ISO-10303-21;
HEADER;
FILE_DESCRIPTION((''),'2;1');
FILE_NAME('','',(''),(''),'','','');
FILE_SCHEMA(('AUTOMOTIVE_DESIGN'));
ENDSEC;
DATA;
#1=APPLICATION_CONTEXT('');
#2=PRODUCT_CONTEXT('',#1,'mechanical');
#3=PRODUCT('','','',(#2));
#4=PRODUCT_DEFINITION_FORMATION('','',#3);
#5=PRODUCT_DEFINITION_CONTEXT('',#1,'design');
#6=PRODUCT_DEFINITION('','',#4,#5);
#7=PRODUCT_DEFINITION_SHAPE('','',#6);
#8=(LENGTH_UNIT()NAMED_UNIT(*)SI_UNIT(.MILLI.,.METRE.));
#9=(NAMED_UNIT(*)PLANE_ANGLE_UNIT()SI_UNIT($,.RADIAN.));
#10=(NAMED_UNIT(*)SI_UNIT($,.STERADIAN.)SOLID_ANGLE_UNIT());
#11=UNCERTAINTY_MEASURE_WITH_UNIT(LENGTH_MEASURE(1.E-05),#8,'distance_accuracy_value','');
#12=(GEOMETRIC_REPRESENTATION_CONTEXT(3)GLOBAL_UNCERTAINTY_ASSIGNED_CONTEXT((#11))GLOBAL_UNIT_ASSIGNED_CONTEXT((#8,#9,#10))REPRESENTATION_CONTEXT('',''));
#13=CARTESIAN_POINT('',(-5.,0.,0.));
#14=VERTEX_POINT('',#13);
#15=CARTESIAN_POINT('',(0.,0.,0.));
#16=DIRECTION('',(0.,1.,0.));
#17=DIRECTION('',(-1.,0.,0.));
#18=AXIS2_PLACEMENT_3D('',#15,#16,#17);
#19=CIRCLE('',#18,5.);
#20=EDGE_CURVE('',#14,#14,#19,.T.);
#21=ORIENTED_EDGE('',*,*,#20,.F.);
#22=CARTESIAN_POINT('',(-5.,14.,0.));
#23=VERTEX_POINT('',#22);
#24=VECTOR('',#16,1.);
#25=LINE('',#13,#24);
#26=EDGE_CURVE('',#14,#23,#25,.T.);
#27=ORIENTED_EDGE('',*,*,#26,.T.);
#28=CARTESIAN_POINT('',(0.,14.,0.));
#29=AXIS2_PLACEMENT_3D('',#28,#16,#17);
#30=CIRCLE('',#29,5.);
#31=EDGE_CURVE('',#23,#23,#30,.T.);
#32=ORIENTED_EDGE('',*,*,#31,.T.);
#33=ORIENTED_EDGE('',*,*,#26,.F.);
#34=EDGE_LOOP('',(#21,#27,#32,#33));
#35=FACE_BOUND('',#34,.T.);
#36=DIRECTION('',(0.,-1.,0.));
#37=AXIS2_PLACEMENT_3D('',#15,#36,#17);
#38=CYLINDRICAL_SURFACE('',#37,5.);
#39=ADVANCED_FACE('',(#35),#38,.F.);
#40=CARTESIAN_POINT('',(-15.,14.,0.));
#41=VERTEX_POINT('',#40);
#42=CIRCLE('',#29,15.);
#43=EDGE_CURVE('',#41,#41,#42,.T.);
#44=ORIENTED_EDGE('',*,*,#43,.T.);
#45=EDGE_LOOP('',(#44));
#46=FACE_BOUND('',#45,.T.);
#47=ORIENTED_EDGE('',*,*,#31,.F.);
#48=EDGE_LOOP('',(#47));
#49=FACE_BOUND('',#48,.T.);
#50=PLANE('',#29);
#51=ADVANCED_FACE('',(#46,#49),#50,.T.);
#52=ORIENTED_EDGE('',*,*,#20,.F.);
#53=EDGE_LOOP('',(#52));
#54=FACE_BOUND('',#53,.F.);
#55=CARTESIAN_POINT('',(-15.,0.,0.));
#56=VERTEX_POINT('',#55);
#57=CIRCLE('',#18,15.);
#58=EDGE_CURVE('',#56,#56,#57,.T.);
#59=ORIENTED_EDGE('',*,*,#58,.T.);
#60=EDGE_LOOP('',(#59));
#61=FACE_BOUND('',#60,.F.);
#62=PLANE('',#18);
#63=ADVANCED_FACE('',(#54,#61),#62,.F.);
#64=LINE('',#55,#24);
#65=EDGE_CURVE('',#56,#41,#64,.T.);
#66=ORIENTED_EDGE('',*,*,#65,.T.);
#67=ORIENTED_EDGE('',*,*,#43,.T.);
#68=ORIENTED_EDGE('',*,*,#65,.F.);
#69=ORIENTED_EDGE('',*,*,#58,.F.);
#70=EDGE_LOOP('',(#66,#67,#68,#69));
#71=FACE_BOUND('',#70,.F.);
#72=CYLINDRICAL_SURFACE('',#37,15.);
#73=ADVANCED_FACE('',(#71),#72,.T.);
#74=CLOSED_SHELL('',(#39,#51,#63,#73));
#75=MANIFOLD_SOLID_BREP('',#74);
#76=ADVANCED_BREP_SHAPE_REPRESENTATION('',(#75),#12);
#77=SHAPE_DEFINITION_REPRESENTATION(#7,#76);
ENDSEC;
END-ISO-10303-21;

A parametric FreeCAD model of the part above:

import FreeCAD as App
import Part
import Sketcher
Q = App.Units.Quantity

doc = App.newDocument("Part")
body = doc.addObject("PartDesign::Body", "Body")

sketch1 = body.newObject("Sketcher::SketchObject", "Sketch")
sketch1.AttachmentSupport = (doc.getObject("XZ_Plane"), [""])
sketch1.MapMode = "FlatFace"
sketch1.addGeometry([
    Part.Circle(App.Vector(0, 0, 0), App.Vector(0, 0, 1), 15),
    Part.Circle(App.Vector(0, 0, 0), App.Vector(0, 0, 1), 5),
], False)
sketch1.addConstraint([
    Sketcher.Constraint("Coincident", 0, 3, -1, 1),
    Sketcher.Constraint("Coincident", 1, 3, -1, 1),
    Sketcher.Constraint("Diameter", 0, Q("30 mm")),
    Sketcher.Constraint("Diameter", 1, Q("10 mm")),
])
pad1 = body.newObject("PartDesign::Pad", "Pad")
pad1.Profile = sketch1
pad1.Length = 14
pad1.Reversed = True

doc.recompute()
